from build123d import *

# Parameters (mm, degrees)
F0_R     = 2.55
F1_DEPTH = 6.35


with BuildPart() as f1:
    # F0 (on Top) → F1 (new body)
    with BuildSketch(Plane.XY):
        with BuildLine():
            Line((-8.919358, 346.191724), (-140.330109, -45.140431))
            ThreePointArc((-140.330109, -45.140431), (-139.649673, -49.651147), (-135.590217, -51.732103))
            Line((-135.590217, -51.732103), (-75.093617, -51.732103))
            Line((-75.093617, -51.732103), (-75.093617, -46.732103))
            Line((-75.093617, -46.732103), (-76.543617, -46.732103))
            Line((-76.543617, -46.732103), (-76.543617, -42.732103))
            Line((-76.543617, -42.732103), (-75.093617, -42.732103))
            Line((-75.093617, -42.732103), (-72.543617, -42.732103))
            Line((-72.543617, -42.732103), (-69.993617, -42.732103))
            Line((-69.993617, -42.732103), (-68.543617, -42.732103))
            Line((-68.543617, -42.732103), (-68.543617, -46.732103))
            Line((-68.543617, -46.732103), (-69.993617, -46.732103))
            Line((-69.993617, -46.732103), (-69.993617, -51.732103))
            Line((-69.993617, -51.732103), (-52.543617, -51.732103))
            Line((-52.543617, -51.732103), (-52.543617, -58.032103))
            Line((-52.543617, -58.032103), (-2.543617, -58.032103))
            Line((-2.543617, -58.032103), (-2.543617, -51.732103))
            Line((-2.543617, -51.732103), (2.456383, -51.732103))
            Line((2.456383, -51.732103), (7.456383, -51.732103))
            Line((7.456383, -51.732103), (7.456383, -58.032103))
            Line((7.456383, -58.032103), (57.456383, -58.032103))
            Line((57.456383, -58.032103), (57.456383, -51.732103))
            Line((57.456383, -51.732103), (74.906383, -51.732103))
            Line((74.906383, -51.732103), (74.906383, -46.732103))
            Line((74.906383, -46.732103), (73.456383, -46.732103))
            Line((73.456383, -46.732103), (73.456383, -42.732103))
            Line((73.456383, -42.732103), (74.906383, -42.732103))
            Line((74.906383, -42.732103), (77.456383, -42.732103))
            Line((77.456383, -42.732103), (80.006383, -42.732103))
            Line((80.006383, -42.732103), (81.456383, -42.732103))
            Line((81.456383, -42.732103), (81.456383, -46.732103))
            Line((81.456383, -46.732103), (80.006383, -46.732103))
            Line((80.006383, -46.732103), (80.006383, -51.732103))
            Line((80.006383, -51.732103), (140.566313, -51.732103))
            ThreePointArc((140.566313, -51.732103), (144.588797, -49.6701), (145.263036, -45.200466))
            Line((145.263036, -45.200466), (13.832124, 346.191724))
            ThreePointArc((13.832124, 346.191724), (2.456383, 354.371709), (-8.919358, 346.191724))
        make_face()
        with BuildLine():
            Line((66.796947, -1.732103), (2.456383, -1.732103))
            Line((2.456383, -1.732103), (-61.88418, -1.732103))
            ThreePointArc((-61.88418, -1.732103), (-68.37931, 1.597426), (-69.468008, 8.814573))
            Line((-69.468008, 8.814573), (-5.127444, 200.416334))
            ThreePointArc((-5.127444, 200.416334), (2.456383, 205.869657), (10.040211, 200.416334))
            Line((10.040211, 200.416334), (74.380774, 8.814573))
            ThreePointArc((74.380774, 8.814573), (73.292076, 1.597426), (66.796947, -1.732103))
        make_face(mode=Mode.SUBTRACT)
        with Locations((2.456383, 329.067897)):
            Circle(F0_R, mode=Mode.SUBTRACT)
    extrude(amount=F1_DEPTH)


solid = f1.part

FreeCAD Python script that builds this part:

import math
import FreeCAD as App
import Part
import Sketcher
from FreeCAD import Vector

doc = App.newDocument("Part")
body = doc.addObject("PartDesign::Body", "Body")

sketch1 = body.newObject("Sketcher::SketchObject", "Sketch")
sketch1.AttachmentSupport = (doc.getObject("XY_Plane"), [""])
sketch1.MapMode = "FlatFace"
sketch1.addGeometry([
    Part.LineSegment(Vector(-8.919358, 346.191724, 0), Vector(-140.330109, -45.140431, 0)),
    Part.ArcOfCircle(Part.Circle(Vector(-135.590217, -46.732104, 0), Vector(0, 0, 1), 4.999999), math.radians(161.437764), math.radians(270.000005)),
    Part.LineSegment(Vector(-135.590217, -51.732103, 0), Vector(-75.093617, -51.732103, 0)),
    Part.LineSegment(Vector(-75.093617, -51.732103, 0), Vector(-75.093617, -46.732103, 0)),
    Part.LineSegment(Vector(-75.093617, -46.732103, 0), Vector(-76.543617, -46.732103, 0)),
    Part.LineSegment(Vector(-76.543617, -46.732103, 0), Vector(-76.543617, -42.732103, 0)),
    Part.LineSegment(Vector(-76.543617, -42.732103, 0), Vector(-68.543617, -42.732103, 0)),
    Part.LineSegment(Vector(-68.543617, -42.732103, 0), Vector(-68.543617, -46.732103, 0)),
    Part.LineSegment(Vector(-68.543617, -46.732103, 0), Vector(-69.993617, -46.732103, 0)),
    Part.LineSegment(Vector(-69.993617, -46.732103, 0), Vector(-69.993617, -51.732103, 0)),
    Part.LineSegment(Vector(-69.993617, -51.732103, 0), Vector(-52.543617, -51.732103, 0)),
    Part.LineSegment(Vector(-52.543617, -51.732103, 0), Vector(-52.543617, -58.032103, 0)),
    Part.LineSegment(Vector(-52.543617, -58.032103, 0), Vector(-2.543617, -58.032103, 0)),
    Part.LineSegment(Vector(-2.543617, -58.032103, 0), Vector(-2.543617, -51.732103, 0)),
    Part.LineSegment(Vector(-2.543617, -51.732103, 0), Vector(7.456383, -51.732103, 0)),
    Part.LineSegment(Vector(7.456383, -51.732103, 0), Vector(7.456383, -58.032103, 0)),
    Part.LineSegment(Vector(7.456383, -58.032103, 0), Vector(57.456383, -58.032103, 0)),
    Part.LineSegment(Vector(57.456383, -58.032103, 0), Vector(57.456383, -51.732103, 0)),
    Part.LineSegment(Vector(57.456383, -51.732103, 0), Vector(74.906383, -51.732103, 0)),
    Part.LineSegment(Vector(74.906383, -51.732103, 0), Vector(74.906383, -46.732103, 0)),
    Part.LineSegment(Vector(74.906383, -46.732103, 0), Vector(73.456383, -46.732103, 0)),
    Part.LineSegment(Vector(73.456383, -46.732103, 0), Vector(73.456383, -42.732103, 0)),
    Part.LineSegment(Vector(73.456383, -42.732103, 0), Vector(81.456383, -42.732103, 0)),
    Part.LineSegment(Vector(81.456383, -42.732103, 0), Vector(81.456383, -46.732103, 0)),
    Part.LineSegment(Vector(81.456383, -46.732103, 0), Vector(80.006383, -46.732103, 0)),
    Part.LineSegment(Vector(80.006383, -46.732103, 0), Vector(80.006383, -51.732103, 0)),
    Part.LineSegment(Vector(80.006383, -51.732103, 0), Vector(140.566313, -51.732103, 0)),
    Part.ArcOfCircle(Part.Circle(Vector(140.566314, -46.777642, 0), Vector(0, 0, 1), 4.954461), math.radians(-90.000011), math.radians(18.562236)),
    Part.LineSegment(Vector(145.263036, -45.200466, 0), Vector(13.832124, 346.191724, 0)),
    Part.ArcOfCircle(Part.Circle(Vector(2.456383, 342.371709, 0), Vector(0, 0, 1), 12), math.radians(18.562237), math.radians(161.437763)),
    Part.ArcOfCircle(Part.Circle(Vector(66.796947, 6.267896, 0), Vector(0, 0, 1), 7.999999), math.radians(-90.000003), math.radians(18.562239)),
    Part.LineSegment(Vector(66.796947, -1.732103, 0), Vector(-61.88418, -1.732103, 0)),
    Part.ArcOfCircle(Part.Circle(Vector(-61.884181, 6.267896, 0), Vector(0, 0, 1), 7.999999), math.radians(161.437761), math.radians(270.00001)),
    Part.LineSegment(Vector(-69.468008, 8.814573, 0), Vector(-5.127444, 200.416334, 0)),
    Part.ArcOfCircle(Part.Circle(Vector(2.456383, 197.869657, 0), Vector(0, 0, 1), 8), math.radians(18.562241), math.radians(161.437759)),
    Part.LineSegment(Vector(10.040211, 200.416334, 0), Vector(74.380774, 8.814573, 0)),
    Part.Circle(Vector(2.456383, 329.067897, 0), Vector(0, 0, 1), 2.55),
], False)
sketch1.addConstraint([
    Sketcher.Constraint("Tangent", 0, 2, 1, 1),
    Sketcher.Constraint("Tangent", 1, 2, 2, 1),
    Sketcher.Constraint("Coincident", 2, 2, 3, 1),
    Sketcher.Constraint("Coincident", 3, 2, 4, 1),
    Sketcher.Constraint("Coincident", 4, 2, 5, 1),
    Sketcher.Constraint("Coincident", 5, 2, 6, 1),
    Sketcher.Constraint("Coincident", 6, 2, 7, 1),
    Sketcher.Constraint("Coincident", 7, 2, 8, 1),
    Sketcher.Constraint("Coincident", 8, 2, 9, 1),
    Sketcher.Constraint("Coincident", 9, 2, 10, 1),
    Sketcher.Constraint("Coincident", 10, 2, 11, 1),
    Sketcher.Constraint("Coincident", 11, 2, 12, 1),
    Sketcher.Constraint("Coincident", 12, 2, 13, 1),
    Sketcher.Constraint("Coincident", 13, 2, 14, 1),
    Sketcher.Constraint("Coincident", 14, 2, 15, 1),
    Sketcher.Constraint("Coincident", 15, 2, 16, 1),
    Sketcher.Constraint("Coincident", 16, 2, 17, 1),
    Sketcher.Constraint("Coincident", 17, 2, 18, 1),
    Sketcher.Constraint("Coincident", 18, 2, 19, 1),
    Sketcher.Constraint("Coincident", 19, 2, 20, 1),
    Sketcher.Constraint("Coincident", 20, 2, 21, 1),
    Sketcher.Constraint("Coincident", 21, 2, 22, 1),
    Sketcher.Constraint("Coincident", 22, 2, 23, 1),
    Sketcher.Constraint("Coincident", 23, 2, 24, 1),
    Sketcher.Constraint("Coincident", 24, 2, 25, 1),
    Sketcher.Constraint("Coincident", 25, 2, 26, 1),
    Sketcher.Constraint("Tangent", 26, 2, 27, 1),
    Sketcher.Constraint("Tangent", 27, 2, 28, 1),
    Sketcher.Constraint("Tangent", 28, 2, 29, 1),
    Sketcher.Constraint("Tangent", 29, 2, 0, 1),
    Sketcher.Constraint("Tangent", 30, 1, 31, 1),
    Sketcher.Constraint("Tangent", 31, 2, 32, 2),
    Sketcher.Constraint("Tangent", 32, 1, 33, 1),
    Sketcher.Constraint("Tangent", 33, 2, 34, 2),
    Sketcher.Constraint("Tangent", 34, 1, 35, 1),
    Sketcher.Constraint("Tangent", 35, 2, 30, 2),
    Sketcher.Constraint("Horizontal", 2),
    Sketcher.Constraint("Vertical", 3),
    Sketcher.Constraint("Horizontal", 4),
    Sketcher.Constraint("Vertical", 5),
    Sketcher.Constraint("Horizontal", 6),
    Sketcher.Constraint("Vertical", 7),
    Sketcher.Constraint("Horizontal", 8),
    Sketcher.Constraint("Vertical", 9),
    Sketcher.Constraint("Horizontal", 10),
    Sketcher.Constraint("Vertical", 11),
    Sketcher.Constraint("Horizontal", 12),
    Sketcher.Constraint("Vertical", 13),
    Sketcher.Constraint("Horizontal", 14),
    Sketcher.Constraint("Vertical", 15),
    Sketcher.Constraint("Horizontal", 16),
    Sketcher.Constraint("Vertical", 17),
    Sketcher.Constraint("Horizontal", 18),
    Sketcher.Constraint("Vertical", 19),
    Sketcher.Constraint("Horizontal", 20),
    Sketcher.Constraint("Vertical", 21),
    Sketcher.Constraint("Horizontal", 22),
    Sketcher.Constraint("Vertical", 23),
    Sketcher.Constraint("Horizontal", 24),
    Sketcher.Constraint("Vertical", 25),
    Sketcher.Constraint("Horizontal", 26),
    Sketcher.Constraint("Horizontal", 31),
    Sketcher.Constraint("Equal", 30, 32),
    Sketcher.Constraint("Equal", 32, 34),
    Sketcher.Constraint("Parallel", 0, 33),
    Sketcher.Constraint("Parallel", 28, 35),
    Sketcher.Constraint("Horizontal", 1, 3, 3, 2),
    Sketcher.Constraint("Horizontal", 4, 2, 7, 2),
    Sketcher.Constraint("Horizontal", 2, 2, 9, 2),
    Sketcher.Constraint("Horizontal", 10, 2, 13, 2),
    Sketcher.Constraint("Horizontal", 12, 2, 15, 2),
    Sketcher.Constraint("Horizontal", 14, 2, 17, 2),
    Sketcher.Constraint("Horizontal", 8, 2, 19, 2),
    Sketcher.Constraint("Horizontal", 6, 2, 21, 2),
    Sketcher.Constraint("Horizontal", 20, 2, 23, 2),
    Sketcher.Constraint("Horizontal", 18, 2, 25, 2),
    Sketcher.Constraint("Horizontal", 28, 2, 29, 2),
    Sketcher.Constraint("Vertical", 29, 3, 34, 3),
    Sketcher.Constraint("Vertical", 34, 3, 36, 3),
    Sketcher.Constraint("Equal", 4, 8),
    Sketcher.Constraint("Equal", 12, 16),
    Sketcher.Constraint("Equal", 10, 18),
    Sketcher.Constraint("Equal", 8, 20),
    Sketcher.Constraint("Equal", 6, 22),
    Sketcher.Constraint("Equal", 20, 24),
    Sketcher.Constraint("Radius", 1, 4.999999),
    Sketcher.Constraint("Radius", 29, 12.0),
    Sketcher.Constraint("Radius", 30, 7.999999),
    Sketcher.Constraint("Diameter", 36, 5.1),
    Sketcher.Constraint("DistanceX", 6, 1, 6, 2, 8.0),
    Sketcher.Constraint("DistanceX", 12, 1, 12, 2, 50.0),
    Sketcher.Constraint("DistanceX", 14, 1, 14, 2, 10.0),
    Sketcher.Constraint("DistanceY", 5, 1, 5, 2, 4.0),
    Sketcher.Constraint("DistanceY", 11, 2, 11, 1, 6.3),
    Sketcher.Constraint("DistanceY", 1, 3, 30, 3, 53.0),
    Sketcher.Constraint("DistanceX", 7, 2, 10, 2, 16.0),
    Sketcher.Constraint("DistanceX", 4, 2, 4, 1, 1.45),
    Sketcher.Constraint("DistanceY", 30, 3, 36, 3, 322.800001),
    Sketcher.Constraint("Radius", 27, 4.954461),
    Sketcher.Constraint("DistanceX", 2, 1, 2, 2, 60.4966),
    Sketcher.Constraint("DistanceX", 26, 1, 26, 2, 60.55993),
    Sketcher.Constraint("DistanceY", 27, 3, 34, 3, 244.647299),
    Sketcher.Constraint("Distance", 35, 202.116162),
    Sketcher.Constraint("DistanceY", -1, 1, 29, 3, 342.371709),
    Sketcher.Constraint("DistanceX", 32, 3, -1, 1, 61.884181),
])
pad1 = body.newObject("PartDesign::Pad", "Pad")
pad1.Profile = sketch1
pad1.Length = 6.35

doc.recompute()
